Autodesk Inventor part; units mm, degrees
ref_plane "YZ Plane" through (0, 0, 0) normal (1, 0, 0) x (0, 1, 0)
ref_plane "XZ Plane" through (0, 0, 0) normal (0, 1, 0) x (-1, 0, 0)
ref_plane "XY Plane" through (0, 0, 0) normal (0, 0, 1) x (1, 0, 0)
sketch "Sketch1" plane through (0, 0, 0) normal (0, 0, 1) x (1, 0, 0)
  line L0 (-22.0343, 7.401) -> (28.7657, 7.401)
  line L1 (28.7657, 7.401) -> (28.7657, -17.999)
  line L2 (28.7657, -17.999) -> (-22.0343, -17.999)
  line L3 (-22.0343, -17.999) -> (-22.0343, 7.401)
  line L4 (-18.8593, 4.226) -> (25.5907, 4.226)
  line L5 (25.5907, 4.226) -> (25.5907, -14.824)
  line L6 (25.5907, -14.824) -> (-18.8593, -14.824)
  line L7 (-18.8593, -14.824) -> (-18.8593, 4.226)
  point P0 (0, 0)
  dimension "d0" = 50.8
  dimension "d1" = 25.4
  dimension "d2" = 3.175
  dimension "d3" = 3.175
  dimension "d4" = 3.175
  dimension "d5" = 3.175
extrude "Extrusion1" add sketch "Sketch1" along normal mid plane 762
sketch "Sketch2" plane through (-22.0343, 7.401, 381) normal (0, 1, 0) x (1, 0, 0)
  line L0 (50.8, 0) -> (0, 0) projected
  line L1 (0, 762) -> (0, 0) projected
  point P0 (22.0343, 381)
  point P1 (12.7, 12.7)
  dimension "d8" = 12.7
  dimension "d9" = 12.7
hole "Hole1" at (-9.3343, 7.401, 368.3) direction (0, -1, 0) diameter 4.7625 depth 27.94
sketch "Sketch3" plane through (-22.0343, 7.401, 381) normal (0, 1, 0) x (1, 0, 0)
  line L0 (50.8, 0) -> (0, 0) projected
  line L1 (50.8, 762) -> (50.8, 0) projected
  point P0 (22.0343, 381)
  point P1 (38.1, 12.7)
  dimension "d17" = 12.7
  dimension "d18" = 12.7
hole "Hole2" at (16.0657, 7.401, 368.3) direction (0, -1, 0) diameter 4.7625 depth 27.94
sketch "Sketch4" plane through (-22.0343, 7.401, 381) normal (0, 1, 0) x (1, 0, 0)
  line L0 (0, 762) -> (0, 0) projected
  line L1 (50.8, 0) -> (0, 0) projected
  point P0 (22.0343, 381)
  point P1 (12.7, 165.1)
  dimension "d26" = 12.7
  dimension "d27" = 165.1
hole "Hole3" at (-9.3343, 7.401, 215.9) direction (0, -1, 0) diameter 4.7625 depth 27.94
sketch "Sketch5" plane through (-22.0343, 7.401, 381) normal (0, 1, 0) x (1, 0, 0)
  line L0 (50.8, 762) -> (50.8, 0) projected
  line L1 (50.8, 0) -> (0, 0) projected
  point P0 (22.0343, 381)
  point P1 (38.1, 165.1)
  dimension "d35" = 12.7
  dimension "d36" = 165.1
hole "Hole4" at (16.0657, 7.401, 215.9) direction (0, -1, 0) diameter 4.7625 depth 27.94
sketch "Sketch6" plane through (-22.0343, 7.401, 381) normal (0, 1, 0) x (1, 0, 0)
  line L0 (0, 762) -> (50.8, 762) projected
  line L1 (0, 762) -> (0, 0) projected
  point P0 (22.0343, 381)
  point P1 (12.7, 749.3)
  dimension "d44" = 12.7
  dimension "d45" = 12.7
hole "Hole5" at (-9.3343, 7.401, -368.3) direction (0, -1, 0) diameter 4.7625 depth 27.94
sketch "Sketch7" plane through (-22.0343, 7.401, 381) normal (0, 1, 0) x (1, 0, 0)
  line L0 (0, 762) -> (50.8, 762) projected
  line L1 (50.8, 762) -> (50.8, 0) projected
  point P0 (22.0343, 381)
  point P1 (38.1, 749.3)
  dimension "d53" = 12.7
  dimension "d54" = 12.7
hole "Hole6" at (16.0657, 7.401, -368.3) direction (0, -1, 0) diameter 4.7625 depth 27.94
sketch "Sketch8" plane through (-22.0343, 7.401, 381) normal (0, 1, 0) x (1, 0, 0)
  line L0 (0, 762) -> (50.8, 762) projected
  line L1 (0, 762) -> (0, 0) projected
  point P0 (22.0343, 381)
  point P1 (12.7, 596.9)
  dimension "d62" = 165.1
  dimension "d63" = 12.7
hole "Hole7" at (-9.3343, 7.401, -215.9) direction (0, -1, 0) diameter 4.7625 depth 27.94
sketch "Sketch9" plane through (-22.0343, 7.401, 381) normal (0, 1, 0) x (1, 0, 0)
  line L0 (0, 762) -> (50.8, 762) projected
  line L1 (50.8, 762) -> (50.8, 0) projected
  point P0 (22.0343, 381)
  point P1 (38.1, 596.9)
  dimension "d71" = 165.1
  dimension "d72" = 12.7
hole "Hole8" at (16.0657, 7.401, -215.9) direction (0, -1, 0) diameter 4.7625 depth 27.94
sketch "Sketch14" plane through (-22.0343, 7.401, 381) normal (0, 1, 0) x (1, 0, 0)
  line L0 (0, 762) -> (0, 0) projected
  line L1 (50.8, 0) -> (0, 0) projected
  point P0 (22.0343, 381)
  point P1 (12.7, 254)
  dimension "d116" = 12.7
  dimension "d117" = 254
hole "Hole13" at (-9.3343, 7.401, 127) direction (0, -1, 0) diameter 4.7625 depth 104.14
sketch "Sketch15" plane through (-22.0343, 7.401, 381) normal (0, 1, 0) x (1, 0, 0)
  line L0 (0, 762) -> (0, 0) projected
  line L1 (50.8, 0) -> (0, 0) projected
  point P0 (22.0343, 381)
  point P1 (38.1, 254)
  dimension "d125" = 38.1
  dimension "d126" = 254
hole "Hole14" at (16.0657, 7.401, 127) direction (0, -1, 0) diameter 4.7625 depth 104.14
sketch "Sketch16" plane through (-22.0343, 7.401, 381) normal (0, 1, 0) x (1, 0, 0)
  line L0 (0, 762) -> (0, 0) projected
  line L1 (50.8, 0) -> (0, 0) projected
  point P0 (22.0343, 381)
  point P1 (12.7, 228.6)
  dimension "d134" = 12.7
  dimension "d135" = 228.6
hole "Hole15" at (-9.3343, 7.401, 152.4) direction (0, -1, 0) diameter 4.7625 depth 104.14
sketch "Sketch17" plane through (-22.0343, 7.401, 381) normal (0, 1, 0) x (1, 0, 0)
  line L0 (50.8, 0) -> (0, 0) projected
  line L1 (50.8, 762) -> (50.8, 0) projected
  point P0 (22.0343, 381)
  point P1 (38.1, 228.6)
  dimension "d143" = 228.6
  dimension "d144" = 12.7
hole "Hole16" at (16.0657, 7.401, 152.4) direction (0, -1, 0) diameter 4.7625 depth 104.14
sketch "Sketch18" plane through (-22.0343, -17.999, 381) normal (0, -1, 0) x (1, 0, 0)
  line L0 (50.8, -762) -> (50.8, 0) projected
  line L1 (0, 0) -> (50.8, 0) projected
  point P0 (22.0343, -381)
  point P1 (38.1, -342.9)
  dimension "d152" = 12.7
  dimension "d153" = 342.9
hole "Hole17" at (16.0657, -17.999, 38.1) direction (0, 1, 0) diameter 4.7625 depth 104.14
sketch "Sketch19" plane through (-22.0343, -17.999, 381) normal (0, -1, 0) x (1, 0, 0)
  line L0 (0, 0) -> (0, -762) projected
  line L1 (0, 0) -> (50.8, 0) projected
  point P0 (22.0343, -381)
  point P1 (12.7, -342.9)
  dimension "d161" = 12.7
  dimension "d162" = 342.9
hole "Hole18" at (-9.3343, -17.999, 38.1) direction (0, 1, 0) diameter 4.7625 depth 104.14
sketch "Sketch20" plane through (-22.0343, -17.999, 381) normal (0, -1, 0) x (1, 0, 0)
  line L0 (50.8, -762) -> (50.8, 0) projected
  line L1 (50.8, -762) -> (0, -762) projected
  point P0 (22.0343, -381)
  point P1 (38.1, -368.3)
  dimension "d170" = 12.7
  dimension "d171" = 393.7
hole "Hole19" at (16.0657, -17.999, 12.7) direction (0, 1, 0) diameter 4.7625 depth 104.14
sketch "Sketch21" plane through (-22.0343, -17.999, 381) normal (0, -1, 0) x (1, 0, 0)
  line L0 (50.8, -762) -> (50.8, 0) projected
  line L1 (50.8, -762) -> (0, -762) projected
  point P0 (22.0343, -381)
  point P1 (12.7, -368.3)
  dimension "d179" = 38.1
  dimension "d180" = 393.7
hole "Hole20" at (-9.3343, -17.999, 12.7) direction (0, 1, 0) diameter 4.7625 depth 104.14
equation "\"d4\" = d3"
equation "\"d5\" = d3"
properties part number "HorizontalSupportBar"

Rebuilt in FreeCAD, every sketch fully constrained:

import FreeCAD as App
import Part
import Sketcher
Q = App.Units.Quantity

doc = App.newDocument("Part")
params = doc.addObject("Spreadsheet::Sheet", "Params")
for row, (alias, value) in enumerate([
    ("sketch1_width", "2 in"),
    ("sketch1_height", "1 in"),
    ("pad1_length", "30 in"),
    ("sketch2_diameter", "0.1875 in"),
    ("hole_diameter", "0.1875 in"),
    ("hole_depth", "1.1 in"),
    ("sketch3_diameter", "0.1875 in"),
    ("hole2_diameter", "0.1875 in"),
    ("hole2_depth", "1.1 in"),
    ("sketch4_diameter", "0.1875 in"),
    ("hole3_diameter", "0.1875 in"),
    ("hole3_depth", "1.1 in"),
    ("sketch5_diameter", "0.1875 in"),
    ("hole4_diameter", "0.1875 in"),
    ("hole4_depth", "1.1 in"),
    ("sketch6_diameter", "0.1875 in"),
    ("hole5_diameter", "0.1875 in"),
    ("hole5_depth", "1.1 in"),
    ("sketch7_diameter", "0.1875 in"),
    ("hole6_diameter", "0.1875 in"),
    ("hole6_depth", "1.1 in"),
    ("sketch8_diameter", "0.1875 in"),
    ("hole7_diameter", "0.1875 in"),
    ("hole7_depth", "1.1 in"),
    ("sketch9_diameter", "0.1875 in"),
    ("hole8_diameter", "0.1875 in"),
    ("hole8_depth", "1.1 in"),
    ("sketch10_diameter", "0.1875 in"),
    ("hole9_diameter", "0.1875 in"),
    ("hole9_depth", "4.1 in"),
    ("sketch11_diameter", "0.1875 in"),
    ("hole10_diameter", "0.1875 in"),
    ("hole10_depth", "4.1 in"),
    ("sketch12_diameter", "0.1875 in"),
    ("hole11_diameter", "0.1875 in"),
    ("hole11_depth", "4.1 in"),
    ("sketch13_diameter", "0.1875 in"),
    ("hole12_diameter", "0.1875 in"),
    ("hole12_depth", "4.1 in"),
    ("sketch14_diameter", "0.1875 in"),
    ("hole13_diameter", "0.1875 in"),
    ("hole13_depth", "4.1 in"),
    ("sketch15_diameter", "0.1875 in"),
    ("hole14_diameter", "0.1875 in"),
    ("hole14_depth", "4.1 in"),
    ("sketch16_diameter", "0.1875 in"),
    ("hole15_diameter", "0.1875 in"),
    ("hole15_depth", "4.1 in"),
    ("sketch17_diameter", "0.1875 in"),
    ("hole16_diameter", "0.1875 in"),
    ("hole16_depth", "4.1 in"),
], start=1):
    params.set(f"A{row}", alias)
    params.set(f"B{row}", "=" + value)
    params.setAlias(f"B{row}", alias)

body = doc.addObject("PartDesign::Body", "Body")

# Sketch on XY plane
sketch1 = body.newObject("Sketcher::SketchObject", "Sketch")
sketch1.AttachmentSupport = (doc.getObject("XY_Plane"), [""])
sketch1.MapMode = "FlatFace"
sketch1.addGeometry([
    Part.LineSegment(App.Vector(29, 7, 0), App.Vector(-22, 7, 0)),  # 0
    Part.LineSegment(App.Vector(-22, 7, 0), App.Vector(-22, -18, 0)),  # 1
    Part.LineSegment(App.Vector(-22, -18, 0), App.Vector(29, -18, 0)),  # 2
    Part.LineSegment(App.Vector(29, -18, 0), App.Vector(29, 7, 0)),  # 3
    Part.LineSegment(App.Vector(-19, -15, 0), App.Vector(-19, 4, 0)),  # 4
    Part.LineSegment(App.Vector(-19, 4, 0), App.Vector(26, 4, 0)),  # 5
    Part.LineSegment(App.Vector(26, 4, 0), App.Vector(26, -15, 0)),  # 6
    Part.LineSegment(App.Vector(26, -15, 0), App.Vector(-19, -15, 0)),  # 7
], False)
sketch1.addConstraint([
    Sketcher.Constraint("Coincident", 0, 2, 1, 1),
    Sketcher.Constraint("Coincident", 1, 2, 2, 1),
    Sketcher.Constraint("Coincident", 2, 2, 3, 1),
    Sketcher.Constraint("Coincident", 3, 2, 0, 1),
    Sketcher.Constraint("Coincident", 4, 2, 5, 1),
    Sketcher.Constraint("Coincident", 5, 2, 6, 1),
    Sketcher.Constraint("Coincident", 6, 2, 7, 1),
    Sketcher.Constraint("Coincident", 7, 2, 4, 1),
    Sketcher.Constraint("Horizontal", 0),
    Sketcher.Constraint("Vertical", 1),
    Sketcher.Constraint("Horizontal", 2),
    Sketcher.Constraint("Vertical", 3),
    Sketcher.Constraint("Vertical", 4),
    Sketcher.Constraint("Horizontal", 5),
    Sketcher.Constraint("Vertical", 6),
    Sketcher.Constraint("Horizontal", 7),
    Sketcher.Constraint("DistanceX", 0, 2, 0, 1, Q("2 in")),
    Sketcher.Constraint("DistanceY", 1, 2, 1, 1, Q("1 in")),
    Sketcher.Constraint("DistanceX", 0, 2, 4, 2, Q("0.125 in")),
    Sketcher.Constraint("DistanceY", 4, 2, 0, 2, Q("0.125 in")),
    Sketcher.Constraint("DistanceX", 5, 2, 3, 2, Q("0.125 in")),
    Sketcher.Constraint("DistanceY", 2, 2, 6, 2, Q("0.125 in")),
    Sketcher.Constraint("DistanceX", 0, 2, -1, 1, Q("0.8675 in")),
    Sketcher.Constraint("DistanceY", -1, 1, 0, 2, 7.401),
])
sketch1.setExpression("Constraints[16]", "Params.sketch1_width")
sketch1.setExpression("Constraints[17]", "Params.sketch1_height")
pad1 = body.newObject("PartDesign::Pad", "Pad")
pad1.Profile = sketch1
pad1.setExpression("Length", "Params.pad1_length")
pad1.Midplane = True

# Sketch on XZ plane
sketch2 = body.newObject("Sketcher::SketchObject", "Sketch001")
sketch2.AttachmentSupport = (doc.getObject("XZ_Plane"), [""])
sketch2.MapMode = "FlatFace"
sketch2.AttachmentOffset = App.Placement(App.Vector(0, 0, -7.401), App.Rotation())
sketch2.addGeometry(Part.Circle(App.Vector(-9.3, 368.3, 0), App.Vector(0, 0, 1), 2.4), False)
sketch2.addConstraint([
    Sketcher.Constraint("Diameter", 0, Q("0.1875 in")),
    Sketcher.Constraint("DistanceY", -1, 1, 0, 3, Q("14.5 in")),
    Sketcher.Constraint("DistanceX", 0, 3, -1, 1, Q("0.3675 in")),
])
sketch2.setExpression("Constraints[0]", "Params.sketch2_diameter")
doc.recompute()
hole = body.newObject("PartDesign::Hole", "Hole")
hole.Profile = sketch2
hole.ThreadType = "None"
hole.setExpression("Diameter", "Params.hole_diameter")
hole.DepthType = "Dimension"
hole.setExpression("Depth", "Params.hole_depth")
hole.DrillPoint = "Flat"
hole.Reversed = True

# Sketch on XZ plane
sketch3 = body.newObject("Sketcher::SketchObject", "Sketch002")
sketch3.AttachmentSupport = (doc.getObject("XZ_Plane"), [""])
sketch3.MapMode = "FlatFace"
sketch3.AttachmentOffset = App.Placement(App.Vector(0, 0, -7.401), App.Rotation())
sketch3.addGeometry(Part.Circle(App.Vector(16.1, 368.3, 0), App.Vector(0, 0, 1), 2.4), False)
sketch3.addConstraint([
    Sketcher.Constraint("Diameter", 0, Q("0.1875 in")),
    Sketcher.Constraint("DistanceY", -1, 1, 0, 3, Q("14.5 in")),
    Sketcher.Constraint("DistanceX", -1, 1, 0, 3, Q("0.6325 in")),
])
sketch3.setExpression("Constraints[0]", "Params.sketch3_diameter")
doc.recompute()
hole2 = body.newObject("PartDesign::Hole", "Hole001")
hole2.Profile = sketch3
hole2.ThreadType = "None"
hole2.setExpression("Diameter", "Params.hole2_diameter")
hole2.DepthType = "Dimension"
hole2.setExpression("Depth", "Params.hole2_depth")
hole2.DrillPoint = "Flat"
hole2.Reversed = True

# Sketch on XZ plane
sketch4 = body.newObject("Sketcher::SketchObject", "Sketch003")
sketch4.AttachmentSupport = (doc.getObject("XZ_Plane"), [""])
sketch4.MapMode = "FlatFace"
sketch4.AttachmentOffset = App.Placement(App.Vector(0, 0, -7.401), App.Rotation())
sketch4.addGeometry(Part.Circle(App.Vector(-9.3, 215.9, 0), App.Vector(0, 0, 1), 2.4), False)
sketch4.addConstraint([
    Sketcher.Constraint("Diameter", 0, Q("0.1875 in")),
    Sketcher.Constraint("DistanceY", -1, 1, 0, 3, Q("8.5 in")),
    Sketcher.Constraint("DistanceX", 0, 3, -1, 1, Q("0.3675 in")),
])
sketch4.setExpression("Constraints[0]", "Params.sketch4_diameter")
doc.recompute()
hole3 = body.newObject("PartDesign::Hole", "Hole002")
hole3.Profile = sketch4
hole3.ThreadType = "None"
hole3.setExpression("Diameter", "Params.hole3_diameter")
hole3.DepthType = "Dimension"
hole3.setExpression("Depth", "Params.hole3_depth")
hole3.DrillPoint = "Flat"
hole3.Reversed = True

# Sketch on XZ plane
sketch5 = body.newObject("Sketcher::SketchObject", "Sketch004")
sketch5.AttachmentSupport = (doc.getObject("XZ_Plane"), [""])
sketch5.MapMode = "FlatFace"
sketch5.AttachmentOffset = App.Placement(App.Vector(0, 0, -7.401), App.Rotation())
sketch5.addGeometry(Part.Circle(App.Vector(16.1, 215.9, 0), App.Vector(0, 0, 1), 2.4), False)
sketch5.addConstraint([
    Sketcher.Constraint("Diameter", 0, Q("0.1875 in")),
    Sketcher.Constraint("DistanceY", -1, 1, 0, 3, Q("8.5 in")),
    Sketcher.Constraint("DistanceX", -1, 1, 0, 3, Q("0.6325 in")),
])
sketch5.setExpression("Constraints[0]", "Params.sketch5_diameter")
doc.recompute()
hole4 = body.newObject("PartDesign::Hole", "Hole003")
hole4.Profile = sketch5
hole4.ThreadType = "None"
hole4.setExpression("Diameter", "Params.hole4_diameter")
hole4.DepthType = "Dimension"
hole4.setExpression("Depth", "Params.hole4_depth")
hole4.DrillPoint = "Flat"
hole4.Reversed = True

# Sketch on XZ plane
sketch6 = body.newObject("Sketcher::SketchObject", "Sketch005")
sketch6.AttachmentSupport = (doc.getObject("XZ_Plane"), [""])
sketch6.MapMode = "FlatFace"
sketch6.AttachmentOffset = App.Placement(App.Vector(0, 0, -7.401), App.Rotation())
sketch6.addGeometry(Part.Circle(App.Vector(-9.3, -368.3, 0), App.Vector(0, 0, 1), 2.4), False)
sketch6.addConstraint([
    Sketcher.Constraint("Diameter", 0, Q("0.1875 in")),
    Sketcher.Constraint("DistanceY", 0, 3, -1, 1, Q("14.5 in")),
    Sketcher.Constraint("DistanceX", 0, 3, -1, 1, Q("0.3675 in")),
])
sketch6.setExpression("Constraints[0]", "Params.sketch6_diameter")
doc.recompute()
hole5 = body.newObject("PartDesign::Hole", "Hole004")
hole5.Profile = sketch6
hole5.ThreadType = "None"
hole5.setExpression("Diameter", "Params.hole5_diameter")
hole5.DepthType = "Dimension"
hole5.setExpression("Depth", "Params.hole5_depth")
hole5.DrillPoint = "Flat"
hole5.Reversed = True

# Sketch on XZ plane
sketch7 = body.newObject("Sketcher::SketchObject", "Sketch006")
sketch7.AttachmentSupport = (doc.getObject("XZ_Plane"), [""])
sketch7.MapMode = "FlatFace"
sketch7.AttachmentOffset = App.Placement(App.Vector(0, 0, -7.401), App.Rotation())
sketch7.addGeometry(Part.Circle(App.Vector(16.1, -368.3, 0), App.Vector(0, 0, 1), 2.4), False)
sketch7.addConstraint([
    Sketcher.Constraint("Diameter", 0, Q("0.1875 in")),
    Sketcher.Constraint("DistanceY", 0, 3, -1, 1, Q("14.5 in")),
    Sketcher.Constraint("DistanceX", -1, 1, 0, 3, Q("0.6325 in")),
])
sketch7.setExpression("Constraints[0]", "Params.sketch7_diameter")
doc.recompute()
hole6 = body.newObject("PartDesign::Hole", "Hole005")
hole6.Profile = sketch7
hole6.ThreadType = "None"
hole6.setExpression("Diameter", "Params.hole6_diameter")
hole6.DepthType = "Dimension"
hole6.setExpression("Depth", "Params.hole6_depth")
hole6.DrillPoint = "Flat"
hole6.Reversed = True

# Sketch on XZ plane
sketch8 = body.newObject("Sketcher::SketchObject", "Sketch007")
sketch8.AttachmentSupport = (doc.getObject("XZ_Plane"), [""])
sketch8.MapMode = "FlatFace"
sketch8.AttachmentOffset = App.Placement(App.Vector(0, 0, -7.401), App.Rotation())
sketch8.addGeometry(Part.Circle(App.Vector(-9.3, -215.9, 0), App.Vector(0, 0, 1), 2.4), False)
sketch8.addConstraint([
    Sketcher.Constraint("Diameter", 0, Q("0.1875 in")),
    Sketcher.Constraint("DistanceY", 0, 3, -1, 1, Q("8.5 in")),
    Sketcher.Constraint("DistanceX", 0, 3, -1, 1, Q("0.3675 in")),
])
sketch8.setExpression("Constraints[0]", "Params.sketch8_diameter")
doc.recompute()
hole7 = body.newObject("PartDesign::Hole", "Hole006")
hole7.Profile = sketch8
hole7.ThreadType = "None"
hole7.setExpression("Diameter", "Params.hole7_diameter")
hole7.DepthType = "Dimension"
hole7.setExpression("Depth", "Params.hole7_depth")
hole7.DrillPoint = "Flat"
hole7.Reversed = True

# Sketch on XZ plane
sketch9 = body.newObject("Sketcher::SketchObject", "Sketch008")
sketch9.AttachmentSupport = (doc.getObject("XZ_Plane"), [""])
sketch9.MapMode = "FlatFace"
sketch9.AttachmentOffset = App.Placement(App.Vector(0, 0, -7.401), App.Rotation())
sketch9.addGeometry(Part.Circle(App.Vector(16.1, -215.9, 0), App.Vector(0, 0, 1), 2.4), False)
sketch9.addConstraint([
    Sketcher.Constraint("Diameter", 0, Q("0.1875 in")),
    Sketcher.Constraint("DistanceY", 0, 3, -1, 1, Q("8.5 in")),
    Sketcher.Constraint("DistanceX", -1, 1, 0, 3, Q("0.6325 in")),
])
sketch9.setExpression("Constraints[0]", "Params.sketch9_diameter")
doc.recompute()
hole8 = body.newObject("PartDesign::Hole", "Hole007")
hole8.Profile = sketch9
hole8.ThreadType = "None"
hole8.setExpression("Diameter", "Params.hole8_diameter")
hole8.DepthType = "Dimension"
hole8.setExpression("Depth", "Params.hole8_depth")
hole8.DrillPoint = "Flat"
hole8.Reversed = True

# Sketch on XZ plane
sketch10 = body.newObject("Sketcher::SketchObject", "Sketch009")
sketch10.AttachmentSupport = (doc.getObject("XZ_Plane"), [""])
sketch10.MapMode = "FlatFace"
sketch10.AttachmentOffset = App.Placement(App.Vector(0, 0, -7.401), App.Rotation())
sketch10.addGeometry(Part.Circle(App.Vector(-9.3, 127, 0), App.Vector(0, 0, 1), 2.4), False)
sketch10.addConstraint([
    Sketcher.Constraint("Diameter", 0, Q("0.1875 in")),
    Sketcher.Constraint("DistanceY", -1, 1, 0, 3, Q("5 in")),
    Sketcher.Constraint("DistanceX", 0, 3, -1, 1, Q("0.3675 in")),
])
sketch10.setExpression("Constraints[0]", "Params.sketch10_diameter")
doc.recompute()
hole9 = body.newObject("PartDesign::Hole", "Hole008")
hole9.Profile = sketch10
hole9.ThreadType = "None"
hole9.setExpression("Diameter", "Params.hole9_diameter")
hole9.DepthType = "Dimension"
hole9.setExpression("Depth", "Params.hole9_depth")
hole9.DrillPoint = "Flat"
hole9.Reversed = True

# Sketch on XZ plane
sketch11 = body.newObject("Sketcher::SketchObject", "Sketch010")
sketch11.AttachmentSupport = (doc.getObject("XZ_Plane"), [""])
sketch11.MapMode = "FlatFace"
sketch11.AttachmentOffset = App.Placement(App.Vector(0, 0, -7.401), App.Rotation())
sketch11.addGeometry(Part.Circle(App.Vector(16.1, 127, 0), App.Vector(0, 0, 1), 2.4), False)
sketch11.addConstraint([
    Sketcher.Constraint("Diameter", 0, Q("0.1875 in")),
    Sketcher.Constraint("DistanceY", -1, 1, 0, 3, Q("5 in")),
    Sketcher.Constraint("DistanceX", -1, 1, 0, 3, Q("0.6325 in")),
])
sketch11.setExpression("Constraints[0]", "Params.sketch11_diameter")
doc.recompute()
hole10 = body.newObject("PartDesign::Hole", "Hole009")
hole10.Profile = sketch11
hole10.ThreadType = "None"
hole10.setExpression("Diameter", "Params.hole10_diameter")
hole10.DepthType = "Dimension"
hole10.setExpression("Depth", "Params.hole10_depth")
hole10.DrillPoint = "Flat"
hole10.Reversed = True

# Sketch on XZ plane
sketch12 = body.newObject("Sketcher::SketchObject", "Sketch011")
sketch12.AttachmentSupport = (doc.getObject("XZ_Plane"), [""])
sketch12.MapMode = "FlatFace"
sketch12.AttachmentOffset = App.Placement(App.Vector(0, 0, -7.401), App.Rotation())
sketch12.addGeometry(Part.Circle(App.Vector(-9.3, 152.4, 0), App.Vector(0, 0, 1), 2.4), False)
sketch12.addConstraint([
    Sketcher.Constraint("Diameter", 0, Q("0.1875 in")),
    Sketcher.Constraint("DistanceY", -1, 1, 0, 3, Q("6 in")),
    Sketcher.Constraint("DistanceX", 0, 3, -1, 1, Q("0.3675 in")),
])
sketch12.setExpression("Constraints[0]", "Params.sketch12_diameter")
doc.recompute()
hole11 = body.newObject("PartDesign::Hole", "Hole010")
hole11.Profile = sketch12
hole11.ThreadType = "None"
hole11.setExpression("Diameter", "Params.hole11_diameter")
hole11.DepthType = "Dimension"
hole11.setExpression("Depth", "Params.hole11_depth")
hole11.DrillPoint = "Flat"
hole11.Reversed = True

# Sketch on XZ plane
sketch13 = body.newObject("Sketcher::SketchObject", "Sketch012")
sketch13.AttachmentSupport = (doc.getObject("XZ_Plane"), [""])
sketch13.MapMode = "FlatFace"
sketch13.AttachmentOffset = App.Placement(App.Vector(0, 0, -7.401), App.Rotation())
sketch13.addGeometry(Part.Circle(App.Vector(16.1, 152.4, 0), App.Vector(0, 0, 1), 2.4), False)
sketch13.addConstraint([
    Sketcher.Constraint("Diameter", 0, Q("0.1875 in")),
    Sketcher.Constraint("DistanceY", -1, 1, 0, 3, Q("6 in")),
    Sketcher.Constraint("DistanceX", -1, 1, 0, 3, Q("0.6325 in")),
])
sketch13.setExpression("Constraints[0]", "Params.sketch13_diameter")
doc.recompute()
hole12 = body.newObject("PartDesign::Hole", "Hole011")
hole12.Profile = sketch13
hole12.ThreadType = "None"
hole12.setExpression("Diameter", "Params.hole12_diameter")
hole12.DepthType = "Dimension"
hole12.setExpression("Depth", "Params.hole12_depth")
hole12.DrillPoint = "Flat"
hole12.Reversed = True

# Sketch on XZ plane
sketch14 = body.newObject("Sketcher::SketchObject", "Sketch013")
sketch14.AttachmentSupport = (doc.getObject("XZ_Plane"), [""])
sketch14.MapMode = "FlatFace"
sketch14.AttachmentOffset = App.Placement(App.Vector(0, 0, 17.999), App.Rotation())
sketch14.addGeometry(Part.Circle(App.Vector(16.1, 38.1, 0), App.Vector(0, 0, 1), 2.4), False)
sketch14.addConstraint([
    Sketcher.Constraint("Diameter", 0, Q("0.1875 in")),
    Sketcher.Constraint("DistanceY", -1, 1, 0, 3, Q("1.5 in")),
    Sketcher.Constraint("DistanceX", -1, 1, 0, 3, Q("0.6325 in")),
])
sketch14.setExpression("Constraints[0]", "Params.sketch14_diameter")
doc.recompute()
hole13 = body.newObject("PartDesign::Hole", "Hole012")
hole13.Profile = sketch14
hole13.ThreadType = "None"
hole13.setExpression("Diameter", "Params.hole13_diameter")
hole13.DepthType = "Dimension"
hole13.setExpression("Depth", "Params.hole13_depth")
hole13.DrillPoint = "Flat"

# Sketch on XZ plane
sketch15 = body.newObject("Sketcher::SketchObject", "Sketch014")
sketch15.AttachmentSupport = (doc.getObject("XZ_Plane"), [""])
sketch15.MapMode = "FlatFace"
sketch15.AttachmentOffset = App.Placement(App.Vector(0, 0, 17.999), App.Rotation())
sketch15.addGeometry(Part.Circle(App.Vector(-9.3, 38.1, 0), App.Vector(0, 0, 1), 2.4), False)
sketch15.addConstraint([
    Sketcher.Constraint("Diameter", 0, Q("0.1875 in")),
    Sketcher.Constraint("DistanceY", -1, 1, 0, 3, Q("1.5 in")),
    Sketcher.Constraint("DistanceX", 0, 3, -1, 1, Q("0.3675 in")),
])
sketch15.setExpression("Constraints[0]", "Params.sketch15_diameter")
doc.recompute()
hole14 = body.newObject("PartDesign::Hole", "Hole013")
hole14.Profile = sketch15
hole14.ThreadType = "None"
hole14.setExpression("Diameter", "Params.hole14_diameter")
hole14.DepthType = "Dimension"
hole14.setExpression("Depth", "Params.hole14_depth")
hole14.DrillPoint = "Flat"

# Sketch on XZ plane
sketch16 = body.newObject("Sketcher::SketchObject", "Sketch015")
sketch16.AttachmentSupport = (doc.getObject("XZ_Plane"), [""])
sketch16.MapMode = "FlatFace"
sketch16.AttachmentOffset = App.Placement(App.Vector(0, 0, 17.999), App.Rotation())
sketch16.addGeometry(Part.Circle(App.Vector(16.1, 12.7, 0), App.Vector(0, 0, 1), 2.4), False)
sketch16.addConstraint([
    Sketcher.Constraint("Diameter", 0, Q("0.1875 in")),
    Sketcher.Constraint("DistanceY", -1, 1, 0, 3, Q("0.5 in")),
    Sketcher.Constraint("DistanceX", -1, 1, 0, 3, Q("0.6325 in")),
])
sketch16.setExpression("Constraints[0]", "Params.sketch16_diameter")
doc.recompute()
hole15 = body.newObject("PartDesign::Hole", "Hole014")
hole15.Profile = sketch16
hole15.ThreadType = "None"
hole15.setExpression("Diameter", "Params.hole15_diameter")
hole15.DepthType = "Dimension"
hole15.setExpression("Depth", "Params.hole15_depth")
hole15.DrillPoint = "Flat"

# Sketch on XZ plane
sketch17 = body.newObject("Sketcher::SketchObject", "Sketch016")
sketch17.AttachmentSupport = (doc.getObject("XZ_Plane"), [""])
sketch17.MapMode = "FlatFace"
sketch17.AttachmentOffset = App.Placement(App.Vector(0, 0, 17.999), App.Rotation())
sketch17.addGeometry(Part.Circle(App.Vector(-9.3, 12.7, 0), App.Vector(0, 0, 1), 2.4), False)
sketch17.addConstraint([
    Sketcher.Constraint("Diameter", 0, Q("0.1875 in")),
    Sketcher.Constraint("DistanceY", -1, 1, 0, 3, Q("0.5 in")),
    Sketcher.Constraint("DistanceX", 0, 3, -1, 1, Q("0.3675 in")),
])
sketch17.setExpression("Constraints[0]", "Params.sketch17_diameter")
doc.recompute()
hole16 = body.newObject("PartDesign::Hole", "Hole015")
hole16.Profile = sketch17
hole16.ThreadType = "None"
hole16.setExpression("Diameter", "Params.hole16_diameter")
hole16.DepthType = "Dimension"
hole16.setExpression("Depth", "Params.hole16_depth")
hole16.DrillPoint = "Flat"

doc.recompute()
